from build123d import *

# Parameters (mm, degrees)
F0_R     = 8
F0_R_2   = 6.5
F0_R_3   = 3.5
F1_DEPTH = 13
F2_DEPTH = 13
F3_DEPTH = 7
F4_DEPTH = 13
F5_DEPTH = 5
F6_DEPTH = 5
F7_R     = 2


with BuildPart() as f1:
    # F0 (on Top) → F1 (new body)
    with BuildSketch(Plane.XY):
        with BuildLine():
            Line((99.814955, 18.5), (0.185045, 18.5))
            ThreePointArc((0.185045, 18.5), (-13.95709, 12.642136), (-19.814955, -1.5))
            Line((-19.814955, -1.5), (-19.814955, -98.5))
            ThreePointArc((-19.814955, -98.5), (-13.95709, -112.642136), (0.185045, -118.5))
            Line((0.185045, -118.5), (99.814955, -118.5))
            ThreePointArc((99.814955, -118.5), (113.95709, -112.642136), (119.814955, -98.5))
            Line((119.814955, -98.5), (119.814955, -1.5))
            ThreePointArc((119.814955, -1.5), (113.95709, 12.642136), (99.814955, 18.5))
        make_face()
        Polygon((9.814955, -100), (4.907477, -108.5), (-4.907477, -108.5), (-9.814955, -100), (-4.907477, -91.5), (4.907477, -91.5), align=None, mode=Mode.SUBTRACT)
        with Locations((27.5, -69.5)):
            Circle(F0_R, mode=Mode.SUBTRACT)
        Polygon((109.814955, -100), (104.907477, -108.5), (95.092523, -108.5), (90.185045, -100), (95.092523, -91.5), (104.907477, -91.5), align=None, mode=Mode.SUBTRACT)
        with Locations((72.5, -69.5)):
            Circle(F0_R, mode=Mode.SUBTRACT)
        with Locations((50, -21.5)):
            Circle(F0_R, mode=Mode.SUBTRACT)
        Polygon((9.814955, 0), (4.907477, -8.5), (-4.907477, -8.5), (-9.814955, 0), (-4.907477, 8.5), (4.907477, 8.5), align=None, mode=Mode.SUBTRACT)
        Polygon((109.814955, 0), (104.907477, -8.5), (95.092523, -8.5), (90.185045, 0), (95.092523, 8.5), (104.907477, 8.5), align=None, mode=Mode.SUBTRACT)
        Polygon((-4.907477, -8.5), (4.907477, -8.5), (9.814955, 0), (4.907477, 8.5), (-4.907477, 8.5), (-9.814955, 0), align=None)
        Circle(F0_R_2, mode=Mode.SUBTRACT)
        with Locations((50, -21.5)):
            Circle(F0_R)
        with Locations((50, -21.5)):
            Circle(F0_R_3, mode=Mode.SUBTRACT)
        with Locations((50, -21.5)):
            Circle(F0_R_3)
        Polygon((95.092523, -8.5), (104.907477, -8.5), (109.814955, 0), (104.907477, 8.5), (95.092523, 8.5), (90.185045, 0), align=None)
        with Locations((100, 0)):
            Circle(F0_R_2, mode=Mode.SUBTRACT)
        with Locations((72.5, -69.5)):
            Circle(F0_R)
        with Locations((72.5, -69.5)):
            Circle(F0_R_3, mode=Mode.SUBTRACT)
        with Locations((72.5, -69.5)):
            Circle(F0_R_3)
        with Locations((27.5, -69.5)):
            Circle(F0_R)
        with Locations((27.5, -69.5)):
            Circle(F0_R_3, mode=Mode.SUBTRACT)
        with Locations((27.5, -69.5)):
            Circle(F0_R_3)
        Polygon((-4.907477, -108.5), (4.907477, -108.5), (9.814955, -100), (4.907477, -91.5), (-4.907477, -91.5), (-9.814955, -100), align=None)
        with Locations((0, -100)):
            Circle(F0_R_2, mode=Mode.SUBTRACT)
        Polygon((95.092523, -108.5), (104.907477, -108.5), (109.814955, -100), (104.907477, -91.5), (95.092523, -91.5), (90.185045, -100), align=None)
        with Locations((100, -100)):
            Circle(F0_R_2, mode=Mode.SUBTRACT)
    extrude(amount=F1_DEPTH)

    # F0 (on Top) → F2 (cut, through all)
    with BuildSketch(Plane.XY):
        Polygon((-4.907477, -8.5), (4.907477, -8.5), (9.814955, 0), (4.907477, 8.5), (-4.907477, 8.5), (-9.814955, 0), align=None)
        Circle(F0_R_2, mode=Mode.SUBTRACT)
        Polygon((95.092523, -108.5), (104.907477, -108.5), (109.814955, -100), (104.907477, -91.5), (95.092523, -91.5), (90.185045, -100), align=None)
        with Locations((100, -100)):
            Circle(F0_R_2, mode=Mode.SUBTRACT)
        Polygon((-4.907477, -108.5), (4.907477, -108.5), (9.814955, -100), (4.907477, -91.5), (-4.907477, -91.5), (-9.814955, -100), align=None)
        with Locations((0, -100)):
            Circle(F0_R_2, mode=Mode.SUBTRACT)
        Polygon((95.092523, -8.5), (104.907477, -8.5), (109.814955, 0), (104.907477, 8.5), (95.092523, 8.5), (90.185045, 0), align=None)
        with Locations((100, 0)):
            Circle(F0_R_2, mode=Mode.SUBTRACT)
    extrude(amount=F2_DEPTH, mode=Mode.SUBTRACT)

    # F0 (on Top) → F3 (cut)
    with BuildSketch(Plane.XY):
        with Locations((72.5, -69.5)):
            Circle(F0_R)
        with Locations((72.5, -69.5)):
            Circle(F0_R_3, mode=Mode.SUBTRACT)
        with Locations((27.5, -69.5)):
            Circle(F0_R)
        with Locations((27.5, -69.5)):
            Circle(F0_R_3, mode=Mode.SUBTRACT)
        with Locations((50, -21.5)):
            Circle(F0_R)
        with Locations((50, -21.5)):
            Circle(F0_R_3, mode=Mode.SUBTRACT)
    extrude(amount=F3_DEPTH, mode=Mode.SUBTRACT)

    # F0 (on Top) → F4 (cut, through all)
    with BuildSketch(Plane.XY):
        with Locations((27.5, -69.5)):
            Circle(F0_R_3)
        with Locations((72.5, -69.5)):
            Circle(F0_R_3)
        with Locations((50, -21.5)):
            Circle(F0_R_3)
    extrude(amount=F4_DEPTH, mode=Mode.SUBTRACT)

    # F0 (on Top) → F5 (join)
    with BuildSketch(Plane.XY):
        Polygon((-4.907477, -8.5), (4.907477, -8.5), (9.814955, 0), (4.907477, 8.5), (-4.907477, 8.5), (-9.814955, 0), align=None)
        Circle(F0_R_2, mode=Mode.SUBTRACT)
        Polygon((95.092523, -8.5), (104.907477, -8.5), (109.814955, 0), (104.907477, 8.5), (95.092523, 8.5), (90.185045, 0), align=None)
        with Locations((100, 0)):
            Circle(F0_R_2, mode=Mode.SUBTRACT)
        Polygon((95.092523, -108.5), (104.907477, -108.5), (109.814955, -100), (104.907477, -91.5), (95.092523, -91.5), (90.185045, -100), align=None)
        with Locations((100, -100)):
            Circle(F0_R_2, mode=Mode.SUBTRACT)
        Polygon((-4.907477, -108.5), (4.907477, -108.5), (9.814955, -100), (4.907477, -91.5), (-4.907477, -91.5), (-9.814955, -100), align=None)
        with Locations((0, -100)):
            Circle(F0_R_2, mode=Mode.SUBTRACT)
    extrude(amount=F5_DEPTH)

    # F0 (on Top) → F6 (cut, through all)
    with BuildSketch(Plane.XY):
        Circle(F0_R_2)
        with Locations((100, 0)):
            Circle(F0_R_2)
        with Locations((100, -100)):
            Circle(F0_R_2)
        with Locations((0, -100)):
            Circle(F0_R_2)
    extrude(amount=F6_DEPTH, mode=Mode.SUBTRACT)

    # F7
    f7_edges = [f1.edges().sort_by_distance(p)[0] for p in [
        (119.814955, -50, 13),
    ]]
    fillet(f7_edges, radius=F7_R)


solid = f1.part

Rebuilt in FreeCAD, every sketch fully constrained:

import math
import FreeCAD as App
import Part
import Sketcher
from FreeCAD import Vector
Q = App.Units.Quantity


def edges_at(feature, points):
    """Names of the edges that pass closest to the given points."""
    edges = feature.Shape.Edges
    near = lambda p: min(range(len(edges)), key=lambda i: edges[i].distToShape(Part.Vertex(*p))[0])
    return sorted({f"Edge{near(p) + 1}" for p in points})


def add_polygon(sketch, points):
    """Adds a closed chain of lines whose ends are joined by coincident constraints."""
    first, n = sketch.GeometryCount, len(points)
    for a, b in zip(points, points[1:] + points[:1]):
        sketch.addGeometry(Part.LineSegment(App.Vector(*a, 0), App.Vector(*b, 0)), False)
    for i in range(n):
        sketch.addConstraint(Sketcher.Constraint("Coincident", first + i, 2, first + (i + 1) % n, 1))

doc = App.newDocument("Part")
body = doc.addObject("PartDesign::Body", "Body")

# Sketch on XY plane
sketch1 = body.newObject("Sketcher::SketchObject", "Sketch")
sketch1.AttachmentSupport = (doc.getObject("XY_Plane"), [""])
sketch1.MapMode = "FlatFace"
sketch1.addGeometry([
    Part.LineSegment(Vector(100, 18, 0), Vector(0, 18, 0)),  # 0
    Part.ArcOfCircle(Part.Circle(Vector(0, -2, 0), Vector(0, 0, 1), 20), math.radians(90), math.radians(180)),  # 1
    Part.LineSegment(Vector(-20, -2, 0), Vector(-20, -98, 0)),  # 2
    Part.ArcOfCircle(Part.Circle(Vector(0, -98, 0), Vector(0, 0, 1), 20), math.radians(-180), math.radians(-90)),  # 3
    Part.LineSegment(Vector(0, -118, 0), Vector(100, -118, 0)),  # 4
    Part.ArcOfCircle(Part.Circle(Vector(100, -98, 0), Vector(0, 0, 1), 20), math.radians(-90), math.radians(0)),  # 5
    Part.LineSegment(Vector(120, -98, 0), Vector(120, -2, 0)),  # 6
    Part.ArcOfCircle(Part.Circle(Vector(100, -2, 0), Vector(0, 0, 1), 20), math.radians(0), math.radians(90)),  # 7
    Part.Circle(Vector(0, -100, 0), Vector(0, 0, 1), 6),  # 8
    Part.Circle(Vector(100, -100, 0), Vector(0, 0, 1), 6),  # 9
    Part.Circle(Vector(0, 0, 0), Vector(0, 0, 1), 6),  # 10
    Part.Circle(Vector(100, 0, 0), Vector(0, 0, 1), 6),  # 11
], False)
sketch1.addConstraint([
    Sketcher.Constraint("Tangent", 0, 2, 1, 1),
    Sketcher.Constraint("Tangent", 1, 2, 2, 1),
    Sketcher.Constraint("Tangent", 2, 2, 3, 1),
    Sketcher.Constraint("Tangent", 3, 2, 4, 1),
    Sketcher.Constraint("Tangent", 4, 2, 5, 1),
    Sketcher.Constraint("Tangent", 5, 2, 6, 1),
    Sketcher.Constraint("Tangent", 6, 2, 7, 1),
    Sketcher.Constraint("Tangent", 7, 2, 0, 1),
    Sketcher.Constraint("Horizontal", 0),
    Sketcher.Constraint("Vertical", 2),
    Sketcher.Constraint("Horizontal", 4),
    Sketcher.Constraint("Vertical", 6),
    Sketcher.Constraint("Coincident", 10, 3, -1, 1),
    Sketcher.Constraint("Equal", 1, 3),
    Sketcher.Constraint("Equal", 3, 5),
    Sketcher.Constraint("Equal", 5, 7),
    Sketcher.Constraint("Equal", 8, 9),
    Sketcher.Constraint("Equal", 9, 10),
    Sketcher.Constraint("Equal", 10, 11),
    Sketcher.Constraint("PointOnObject", 8, 3, -2),
    Sketcher.Constraint("PointOnObject", 11, 3, -1),
    Sketcher.Constraint("Horizontal", 8, 3, 9, 3),
    Sketcher.Constraint("Vertical", 9, 3, 11, 3),
    Sketcher.Constraint("Diameter", 8, Q("13 mm")),
    Sketcher.Constraint("Radius", 1, Q("20 mm")),
    Sketcher.Constraint("DistanceY", 2, 2, 2, 1, Q("97 mm")),
    Sketcher.Constraint("DistanceY", 8, 3, -1, 1, Q("100 mm")),
    Sketcher.Constraint("DistanceX", -1, 1, 9, 3, Q("100 mm")),
    Sketcher.Constraint("DistanceY", 1, 3, -1, 1, Q("1.5 mm")),
    Sketcher.Constraint("DistanceX", 0, 2, 0, 1, Q("99.62991 mm")),
    Sketcher.Constraint("DistanceX", -1, 1, 1, 3, Q("0.185045 mm")),
])
pad1 = body.newObject("PartDesign::Pad", "Pad")
pad1.Profile = sketch1
pad1.Length = 13

# Sketch on XY plane
sketch2 = body.newObject("Sketcher::SketchObject", "Sketch001")
sketch2.AttachmentSupport = (doc.getObject("XY_Plane"), [""])
sketch2.MapMode = "FlatFace"
add_polygon(sketch2, [(-5, -8), (5, -8), (10, 0), (5, 8), (-5, 8), (-10, 0)])  # lines 0-5
sketch2.addGeometry(Part.Circle(Vector(0, 0, 0), Vector(0, 0, 1), 6), False)  # 6
add_polygon(sketch2, [(95, -108), (105, -108), (110, -100), (105, -92), (95, -92), (90, -100)])  # lines 7-12
sketch2.addGeometry(Part.Circle(Vector(100, -100, 0), Vector(0, 0, 1), 6), False)  # 13
add_polygon(sketch2, [(-5, -108), (5, -108), (10, -100), (5, -92), (-5, -92), (-10, -100)])  # lines 14-19
sketch2.addGeometry(Part.Circle(Vector(0, -100, 0), Vector(0, 0, 1), 6), False)  # 20
add_polygon(sketch2, [(95, -8), (105, -8), (110, 0), (105, 8), (95, 8), (90, 0)])  # lines 21-26
sketch2.addGeometry(Part.Circle(Vector(100, 0, 0), Vector(0, 0, 1), 6), False)  # 27
sketch2.addConstraint([
    Sketcher.Constraint("Horizontal", 0),
    Sketcher.Constraint("Horizontal", 3),
    Sketcher.Constraint("Horizontal", 7),
    Sketcher.Constraint("Horizontal", 10),
    Sketcher.Constraint("Horizontal", 14),
    Sketcher.Constraint("Horizontal", 17),
    Sketcher.Constraint("Horizontal", 21),
    Sketcher.Constraint("Horizontal", 24),
    Sketcher.Constraint("Coincident", 6, 3, -1, 1),
    Sketcher.Constraint("Equal", 6, 13),
    Sketcher.Constraint("Equal", 13, 20),
    Sketcher.Constraint("Equal", 20, 27),
    Sketcher.Constraint("Symmetric", 0, 2, 3, 2, -1, 1),
    Sketcher.Constraint("Symmetric", 1, 2, 4, 2, -1, 1),
    Sketcher.Constraint("Symmetric", 15, 2, 18, 2, -2),
    Sketcher.Constraint("Symmetric", 21, 2, 23, 2, -1),
    Sketcher.Constraint("PointOnObject", 20, 3, -2),
    Sketcher.Constraint("PointOnObject", 27, 3, -1),
    Sketcher.Constraint("PointOnObject", 1, 2, -1),
    Sketcher.Constraint("PointOnObject", 22, 2, -1),
    Sketcher.Constraint("PointOnObject", 25, 2, -1),
    Sketcher.Constraint("Parallel", 2, 5),
    Sketcher.Constraint("Parallel", 4, 8),
    Sketcher.Constraint("Parallel", 5, 9),
    Sketcher.Constraint("Parallel", 8, 11),
    Sketcher.Constraint("Parallel", 9, 12),
    Sketcher.Constraint("Parallel", 11, 15),
    Sketcher.Constraint("Parallel", 12, 16),
    Sketcher.Constraint("Parallel", 15, 18),
    Sketcher.Constraint("Parallel", 16, 19),
    Sketcher.Constraint("Parallel", 18, 22),
    Sketcher.Constraint("Parallel", 19, 23),
    Sketcher.Constraint("Parallel", 22, 25),
    Sketcher.Constraint("Parallel", 23, 26),
    Sketcher.Constraint("Horizontal", 13, 3, 20, 3),
    Sketcher.Constraint("Horizontal", 20, 3, 8, 2),
    Sketcher.Constraint("Horizontal", 8, 2, 11, 2),
    Sketcher.Constraint("Horizontal", 12, 2, 14, 2),
    Sketcher.Constraint("Horizontal", 11, 2, 15, 2),
    Sketcher.Constraint("Horizontal", 10, 2, 16, 2),
    Sketcher.Constraint("Horizontal", 5, 2, 21, 2),
    Sketcher.Constraint("Vertical", 13, 3, 27, 3),
    Sketcher.Constraint("Vertical", 7, 2, 9, 2),
    Sketcher.Constraint("Vertical", 2, 2, 14, 2),
    Sketcher.Constraint("Vertical", 1, 2, 15, 2),
    Sketcher.Constraint("Vertical", 9, 2, 21, 2),
    Sketcher.Constraint("Vertical", 12, 2, 24, 2),
    Sketcher.Constraint("Equal", 3, 7),
    Sketcher.Constraint("Diameter", 6, Q("13 mm")),
    Sketcher.Constraint("Angle", 1, Q("59.999996 deg")),
    Sketcher.Constraint("DistanceX", -1, 1, 13, 3, Q("100 mm")),
    Sketcher.Constraint("DistanceY", 13, 3, -1, 1, Q("100 mm")),
    Sketcher.Constraint("DistanceY", 0, 2, 2, 2, Q("17 mm")),
    Sketcher.Constraint("DistanceX", 0, 2, 7, 2, Q("100 mm")),
    Sketcher.Constraint("DistanceX", 0, 1, 0, 2, Q("9.814954 mm")),
])
pocket1 = body.newObject("PartDesign::Pocket", "Pocket")
pocket1.Profile = sketch2
pocket1.Type = "ThroughAll"
pocket1.Reversed = True

# Sketch on XY plane
sketch3 = body.newObject("Sketcher::SketchObject", "Sketch002")
sketch3.AttachmentSupport = (doc.getObject("XY_Plane"), [""])
sketch3.MapMode = "FlatFace"
sketch3.addGeometry([
    Part.Circle(Vector(72.5, -69.5, 0), Vector(0, 0, 1), 8),  # 0
    Part.Circle(Vector(72.5, -69.5, 0), Vector(0, 0, 1), 3.5),  # 1
    Part.Circle(Vector(27.5, -69.5, 0), Vector(0, 0, 1), 8),  # 2
    Part.Circle(Vector(27.5, -69.5, 0), Vector(0, 0, 1), 3.5),  # 3
    Part.Circle(Vector(50, -21.5, 0), Vector(0, 0, 1), 8),  # 4
    Part.Circle(Vector(50, -21.5, 0), Vector(0, 0, 1), 3.5),  # 5
], False)
sketch3.addConstraint([
    Sketcher.Constraint("Coincident", 1, 3, 0, 3),
    Sketcher.Constraint("Coincident", 3, 3, 2, 3),
    Sketcher.Constraint("Coincident", 5, 3, 4, 3),
    Sketcher.Constraint("Equal", 0, 2),
    Sketcher.Constraint("Equal", 1, 3),
    Sketcher.Constraint("Equal", 2, 4),
    Sketcher.Constraint("Equal", 3, 5),
    Sketcher.Constraint("Horizontal", 1, 3, 2, 3),
    Sketcher.Constraint("Diameter", 0, Q("16 mm")),
    Sketcher.Constraint("Diameter", 1, Q("7 mm")),
    Sketcher.Constraint("DistanceX", -1, 1, 4, 3, Q("50 mm")),
    Sketcher.Constraint("DistanceX", 2, 3, 0, 3, Q("45 mm")),
    Sketcher.Constraint("DistanceY", 0, 3, 4, 3, Q("48 mm")),
    Sketcher.Constraint("DistanceX", -1, 1, 0, 3, Q("72.5 mm")),
    Sketcher.Constraint("DistanceY", 0, 3, -1, 1, Q("69.5 mm")),
])
pocket2 = body.newObject("PartDesign::Pocket", "Pocket001")
pocket2.Profile = sketch3
pocket2.Length = 7
pocket2.Reversed = True

# Sketch on XY plane
sketch4 = body.newObject("Sketcher::SketchObject", "Sketch003")
sketch4.AttachmentSupport = (doc.getObject("XY_Plane"), [""])
sketch4.MapMode = "FlatFace"
sketch4.addGeometry([
    Part.Circle(Vector(27.5, -69.5, 0), Vector(0, 0, 1), 3.5),
    Part.Circle(Vector(72.5, -69.5, 0), Vector(0, 0, 1), 3.5),
    Part.Circle(Vector(50, -21.5, 0), Vector(0, 0, 1), 3.5),
], False)
sketch4.addConstraint([
    Sketcher.Constraint("Equal", 0, 1),
    Sketcher.Constraint("Equal", 1, 2),
    Sketcher.Constraint("Horizontal", 0, 3, 1, 3),
    Sketcher.Constraint("Diameter", 0, Q("7 mm")),
    Sketcher.Constraint("DistanceX", -1, 1, 2, 3, Q("50 mm")),
    Sketcher.Constraint("DistanceX", 0, 3, 1, 3, Q("45 mm")),
    Sketcher.Constraint("DistanceY", 0, 3, 2, 3, Q("48 mm")),
    Sketcher.Constraint("DistanceX", -1, 1, 0, 3, Q("27.5 mm")),
    Sketcher.Constraint("DistanceY", 0, 3, -1, 1, Q("69.5 mm")),
])
pocket3 = body.newObject("PartDesign::Pocket", "Pocket002")
pocket3.Profile = sketch4
pocket3.Type = "ThroughAll"
pocket3.Reversed = True

# Sketch on XY plane
sketch5 = body.newObject("Sketcher::SketchObject", "Sketch004")
sketch5.AttachmentSupport = (doc.getObject("XY_Plane"), [""])
sketch5.MapMode = "FlatFace"
add_polygon(sketch5, [(-5, -8), (5, -8), (10, 0), (5, 8), (-5, 8), (-10, 0)])  # lines 0-5
sketch5.addGeometry(Part.Circle(Vector(0, 0, 0), Vector(0, 0, 1), 6), False)  # 6
add_polygon(sketch5, [(95, -8), (105, -8), (110, 0), (105, 8), (95, 8), (90, 0)])  # lines 7-12
sketch5.addGeometry(Part.Circle(Vector(100, 0, 0), Vector(0, 0, 1), 6), False)  # 13
add_polygon(sketch5, [(95, -108), (105, -108), (110, -100), (105, -92), (95, -92), (90, -100)])  # lines 14-19
sketch5.addGeometry(Part.Circle(Vector(100, -100, 0), Vector(0, 0, 1), 6), False)  # 20
add_polygon(sketch5, [(-5, -108), (5, -108), (10, -100), (5, -92), (-5, -92), (-10, -100)])  # lines 21-26
sketch5.addGeometry(Part.Circle(Vector(0, -100, 0), Vector(0, 0, 1), 6), False)  # 27
sketch5.addConstraint([
    Sketcher.Constraint("Horizontal", 0),
    Sketcher.Constraint("Horizontal", 3),
    Sketcher.Constraint("Horizontal", 7),
    Sketcher.Constraint("Horizontal", 10),
    Sketcher.Constraint("Horizontal", 14),
    Sketcher.Constraint("Horizontal", 17),
    Sketcher.Constraint("Horizontal", 21),
    Sketcher.Constraint("Horizontal", 24),
    Sketcher.Constraint("Coincident", 6, 3, -1, 1),
    Sketcher.Constraint("Equal", 6, 13),
    Sketcher.Constraint("Equal", 13, 20),
    Sketcher.Constraint("Equal", 20, 27),
    Sketcher.Constraint("Symmetric", 0, 2, 3, 2, -1, 1),
    Sketcher.Constraint("Symmetric", 1, 2, 4, 2, -1, 1),
    Sketcher.Constraint("Symmetric", 22, 2, 25, 2, -2),
    Sketcher.Constraint("Symmetric", 7, 2, 9, 2, -1),
    Sketcher.Constraint("PointOnObject", 13, 3, -1),
    Sketcher.Constraint("PointOnObject", 27, 3, -2),
    Sketcher.Constraint("PointOnObject", 1, 2, -1),
    Sketcher.Constraint("PointOnObject", 8, 2, -1),
    Sketcher.Constraint("PointOnObject", 11, 2, -1),
    Sketcher.Constraint("Parallel", 2, 5),
    Sketcher.Constraint("Parallel", 4, 8),
    Sketcher.Constraint("Parallel", 5, 9),
    Sketcher.Constraint("Parallel", 8, 11),
    Sketcher.Constraint("Parallel", 9, 12),
    Sketcher.Constraint("Parallel", 11, 15),
    Sketcher.Constraint("Parallel", 12, 16),
    Sketcher.Constraint("Parallel", 15, 18),
    Sketcher.Constraint("Parallel", 16, 19),
    Sketcher.Constraint("Parallel", 18, 22),
    Sketcher.Constraint("Parallel", 19, 23),
    Sketcher.Constraint("Parallel", 22, 25),
    Sketcher.Constraint("Parallel", 23, 26),
    Sketcher.Constraint("Horizontal", 20, 3, 27, 3),
    Sketcher.Constraint("Horizontal", 5, 2, 7, 2),
    Sketcher.Constraint("Horizontal", 27, 3, 15, 2),
    Sketcher.Constraint("Horizontal", 15, 2, 18, 2),
    Sketcher.Constraint("Horizontal", 19, 2, 21, 2),
    Sketcher.Constraint("Horizontal", 18, 2, 22, 2),
    Sketcher.Constraint("Horizontal", 17, 2, 23, 2),
    Sketcher.Constraint("Vertical", 13, 3, 20, 3),
    Sketcher.Constraint("Vertical", 9, 2, 14, 2),
    Sketcher.Constraint("Vertical", 8, 2, 15, 2),
    Sketcher.Constraint("Vertical", 14, 2, 16, 2),
    Sketcher.Constraint("Vertical", 12, 2, 17, 2),
    Sketcher.Constraint("Vertical", 2, 2, 21, 2),
    Sketcher.Constraint("Equal", 3, 7),
    Sketcher.Constraint("Diameter", 6, Q("13 mm")),
    Sketcher.Constraint("Angle", 1, Q("59.999996 deg")),
    Sketcher.Constraint("DistanceX", -1, 1, 13, 3, Q("100 mm")),
    Sketcher.Constraint("DistanceY", 20, 3, -1, 1, Q("100 mm")),
    Sketcher.Constraint("DistanceY", 0, 2, 2, 2, Q("17 mm")),
    Sketcher.Constraint("DistanceX", 0, 2, 7, 2, Q("100 mm")),
    Sketcher.Constraint("DistanceX", 0, 1, 0, 2, Q("9.814954 mm")),
])
pad2 = body.newObject("PartDesign::Pad", "Pad001")
pad2.Profile = sketch5
pad2.Length = 5

# Sketch on XY plane
sketch6 = body.newObject("Sketcher::SketchObject", "Sketch005")
sketch6.AttachmentSupport = (doc.getObject("XY_Plane"), [""])
sketch6.MapMode = "FlatFace"
sketch6.addGeometry([
    Part.Circle(Vector(0, 0, 0), Vector(0, 0, 1), 6),
    Part.Circle(Vector(100, 0, 0), Vector(0, 0, 1), 6),
    Part.Circle(Vector(100, -100, 0), Vector(0, 0, 1), 6),
    Part.Circle(Vector(0, -100, 0), Vector(0, 0, 1), 6),
], False)
sketch6.addConstraint([
    Sketcher.Constraint("Coincident", 0, 3, -1, 1),
    Sketcher.Constraint("Equal", 0, 1),
    Sketcher.Constraint("Equal", 1, 2),
    Sketcher.Constraint("Equal", 2, 3),
    Sketcher.Constraint("PointOnObject", 1, 3, -1),
    Sketcher.Constraint("PointOnObject", 3, 3, -2),
    Sketcher.Constraint("Horizontal", 2, 3, 3, 3),
    Sketcher.Constraint("Vertical", 1, 3, 2, 3),
    Sketcher.Constraint("Diameter", 0, Q("13 mm")),
    Sketcher.Constraint("DistanceX", -1, 1, 1, 3, Q("100 mm")),
    Sketcher.Constraint("DistanceY", 2, 3, -1, 1, Q("100 mm")),
])
pocket4 = body.newObject("PartDesign::Pocket", "Pocket003")
pocket4.Profile = sketch6
pocket4.Type = "ThroughAll"
pocket4.Reversed = True
doc.recompute()

fillet = body.newObject("PartDesign::Fillet", "Fillet")
fillet.Base = (pocket4, edges_at(pocket4, [(119.815, -50, 13)]))
fillet.Radius = 2

doc.recompute()
